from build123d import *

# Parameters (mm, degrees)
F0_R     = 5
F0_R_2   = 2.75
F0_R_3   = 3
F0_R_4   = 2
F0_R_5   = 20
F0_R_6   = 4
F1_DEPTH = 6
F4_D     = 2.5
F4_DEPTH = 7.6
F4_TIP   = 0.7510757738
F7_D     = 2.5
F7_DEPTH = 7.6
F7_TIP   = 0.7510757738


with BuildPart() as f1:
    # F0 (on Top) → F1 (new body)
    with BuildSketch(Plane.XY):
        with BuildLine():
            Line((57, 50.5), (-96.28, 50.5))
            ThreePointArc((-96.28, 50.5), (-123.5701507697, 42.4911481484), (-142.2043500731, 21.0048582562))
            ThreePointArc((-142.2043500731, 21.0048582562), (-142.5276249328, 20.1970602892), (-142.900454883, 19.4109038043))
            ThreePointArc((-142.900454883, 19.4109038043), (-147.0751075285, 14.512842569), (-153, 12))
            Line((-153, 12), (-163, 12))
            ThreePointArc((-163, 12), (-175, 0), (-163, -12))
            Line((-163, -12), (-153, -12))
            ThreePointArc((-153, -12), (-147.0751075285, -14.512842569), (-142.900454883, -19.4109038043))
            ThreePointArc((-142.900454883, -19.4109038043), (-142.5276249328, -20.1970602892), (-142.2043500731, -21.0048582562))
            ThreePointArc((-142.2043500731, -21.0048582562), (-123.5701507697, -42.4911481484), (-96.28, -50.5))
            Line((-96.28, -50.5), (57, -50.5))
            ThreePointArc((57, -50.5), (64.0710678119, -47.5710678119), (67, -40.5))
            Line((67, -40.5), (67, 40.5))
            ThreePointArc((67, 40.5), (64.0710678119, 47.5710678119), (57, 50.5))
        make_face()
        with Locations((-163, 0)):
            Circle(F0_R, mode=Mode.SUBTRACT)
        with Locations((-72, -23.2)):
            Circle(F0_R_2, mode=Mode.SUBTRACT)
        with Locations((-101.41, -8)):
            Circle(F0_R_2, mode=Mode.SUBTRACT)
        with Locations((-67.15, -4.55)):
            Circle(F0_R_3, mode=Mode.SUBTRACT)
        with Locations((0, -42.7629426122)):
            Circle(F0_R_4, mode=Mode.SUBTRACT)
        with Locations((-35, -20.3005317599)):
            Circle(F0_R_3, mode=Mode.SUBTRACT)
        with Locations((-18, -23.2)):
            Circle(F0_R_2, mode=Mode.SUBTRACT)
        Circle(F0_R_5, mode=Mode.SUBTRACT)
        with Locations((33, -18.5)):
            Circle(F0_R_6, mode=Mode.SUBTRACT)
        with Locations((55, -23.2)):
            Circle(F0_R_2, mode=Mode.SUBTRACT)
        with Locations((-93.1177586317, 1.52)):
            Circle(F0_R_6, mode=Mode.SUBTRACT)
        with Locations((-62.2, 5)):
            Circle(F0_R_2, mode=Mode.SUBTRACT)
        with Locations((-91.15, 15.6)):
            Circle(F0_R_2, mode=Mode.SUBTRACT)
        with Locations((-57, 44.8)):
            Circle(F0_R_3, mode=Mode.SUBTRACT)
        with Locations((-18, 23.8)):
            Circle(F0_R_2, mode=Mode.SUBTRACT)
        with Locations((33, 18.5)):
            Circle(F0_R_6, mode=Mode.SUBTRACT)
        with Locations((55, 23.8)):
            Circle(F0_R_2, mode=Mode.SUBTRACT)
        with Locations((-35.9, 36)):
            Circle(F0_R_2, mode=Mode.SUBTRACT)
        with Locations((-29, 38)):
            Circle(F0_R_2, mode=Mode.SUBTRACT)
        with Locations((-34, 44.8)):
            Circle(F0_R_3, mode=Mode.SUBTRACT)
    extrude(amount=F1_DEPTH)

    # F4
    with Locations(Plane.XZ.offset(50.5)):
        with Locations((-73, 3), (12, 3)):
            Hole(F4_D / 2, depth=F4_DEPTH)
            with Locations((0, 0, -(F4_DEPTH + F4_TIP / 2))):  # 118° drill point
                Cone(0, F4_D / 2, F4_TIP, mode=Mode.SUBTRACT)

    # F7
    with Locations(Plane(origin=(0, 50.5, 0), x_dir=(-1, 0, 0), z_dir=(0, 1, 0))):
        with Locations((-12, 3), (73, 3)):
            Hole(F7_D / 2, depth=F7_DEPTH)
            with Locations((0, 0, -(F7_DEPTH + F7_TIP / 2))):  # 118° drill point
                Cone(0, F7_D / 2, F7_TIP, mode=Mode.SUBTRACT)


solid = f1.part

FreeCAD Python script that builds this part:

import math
import FreeCAD as App
import Part
import Sketcher

V = App.Vector

doc = App.newDocument("Part")
params = doc.addObject("Spreadsheet::Sheet", "Params")
for row, (alias, value) in enumerate([
    ("sketch1_diameter", "10 mm"),
    ("sketch1_diameter2", "6 mm"),
    ("sketch1_diameter3", "4 mm"),
    ("sketch1_diameter4", "40 mm"),
    ("sketch1_diameter5", "8 mm"),
    ("pad1_length", "6 mm"),
    ("sketch2_diameter", "2.5 mm"),
    ("hole_diameter", "2.5 mm"),
    ("hole_depth", "7.6 mm"),
    ("sketch3_diameter", "2.5 mm"),
    ("hole2_diameter", "2.5 mm"),
    ("hole2_depth", "7.6 mm"),
], start=1):
    params.set(f"A{row}", alias)
    params.set(f"B{row}", "=" + value)
    params.setAlias(f"B{row}", alias)

body = doc.addObject("PartDesign::Body", "Body")

sketch1 = body.newObject("Sketcher::SketchObject", "Sketch")
sketch1.AttachmentSupport = (doc.getObject("XY_Plane"), [""])
sketch1.MapMode = "FlatFace"
sketch1.addGeometry(Part.LineSegment(V(57, 50.5, 0), V(-96.28, 50.5, 0)), False)
sketch1.addGeometry(Part.ArcOfCircle(Part.Circle(V(-96.28, 0, 0), V(0, 0, 1), 50.5), math.radians(90), math.radians(155.421613)), False)
sketch1.addGeometry(Part.ArcOfCircle(Part.Circle(V(-155.35752, 25.800076, 0), V(0, 0, 1), 14), math.radians(-27.153081), math.radians(-20.03021)), False)
sketch1.addGeometry(Part.ArcOfCircle(Part.Circle(V(-155.35752, 25.800076, 0), V(0, 0, 1), 14), math.radians(-80.305526), math.radians(-27.153081)), False)
sketch1.addGeometry(Part.LineSegment(V(-153, 12, 0), V(-163, 12, 0)), False)
sketch1.addGeometry(Part.ArcOfCircle(Part.Circle(V(-163, 0, 0), V(0, 0, 1), 12), math.radians(90), math.radians(270)), False)
sketch1.addGeometry(Part.LineSegment(V(-163, -12, 0), V(-153, -12, 0)), False)
sketch1.addGeometry(Part.ArcOfCircle(Part.Circle(V(-155.35752, -25.800076, 0), V(0, 0, 1), 14), math.radians(27.153081), math.radians(80.305526)), False)
sketch1.addGeometry(Part.ArcOfCircle(Part.Circle(V(-155.35752, -25.800076, 0), V(0, 0, 1), 14), math.radians(20.03021), math.radians(27.153081)), False)
sketch1.addGeometry(Part.ArcOfCircle(Part.Circle(V(-96.28, 0, 0), V(0, 0, 1), 50.5), math.radians(-155.421613), math.radians(-90)), False)
sketch1.addGeometry(Part.LineSegment(V(-96.28, -50.5, 0), V(57, -50.5, 0)), False)
sketch1.addGeometry(Part.ArcOfCircle(Part.Circle(V(57, -40.5, 0), V(0, 0, 1), 10), math.radians(-90), math.radians(0)), False)
sketch1.addGeometry(Part.LineSegment(V(67, -40.5, 0), V(67, 40.5, 0)), False)
sketch1.addGeometry(Part.ArcOfCircle(Part.Circle(V(57, 40.5, 0), V(0, 0, 1), 10), math.radians(0), math.radians(90)), False)
sketch1.addGeometry(Part.Circle(V(-72, -23.2, 0), V(0, 0, 1), 2.75), False)
sketch1.addGeometry(Part.Circle(V(-163, 0, 0), V(0, 0, 1), 5), False)
sketch1.addGeometry(Part.Circle(V(-101.41, -8, 0), V(0, 0, 1), 2.75), False)
sketch1.addGeometry(Part.Circle(V(-67.15, -4.55, 0), V(0, 0, 1), 3), False)
sketch1.addGeometry(Part.Circle(V(0, -42.762943, 0), V(0, 0, 1), 2), False)
sketch1.addGeometry(Part.Circle(V(-18, -23.2, 0), V(0, 0, 1), 2.75), False)
sketch1.addGeometry(Part.Circle(V(55, -23.2, 0), V(0, 0, 1), 2.75), False)
sketch1.addGeometry(Part.Circle(V(-35, -20.300532, 0), V(0, 0, 1), 3), False)
sketch1.addGeometry(Part.Circle(V(0, 0, 0), V(0, 0, 1), 20), False)
sketch1.addGeometry(Part.Circle(V(33, -18.5, 0), V(0, 0, 1), 4), False)
sketch1.addGeometry(Part.Circle(V(-93.117759, 1.52, 0), V(0, 0, 1), 4), False)
sketch1.addGeometry(Part.Circle(V(-62.2, 5, 0), V(0, 0, 1), 2.75), False)
sketch1.addGeometry(Part.Circle(V(-91.15, 15.6, 0), V(0, 0, 1), 2.75), False)
sketch1.addGeometry(Part.Circle(V(-57, 44.8, 0), V(0, 0, 1), 3), False)
sketch1.addGeometry(Part.Circle(V(-18, 23.8, 0), V(0, 0, 1), 2.75), False)
sketch1.addGeometry(Part.Circle(V(33, 18.5, 0), V(0, 0, 1), 4), False)
sketch1.addGeometry(Part.Circle(V(55, 23.8, 0), V(0, 0, 1), 2.75), False)
sketch1.addGeometry(Part.Circle(V(-35.9, 36, 0), V(0, 0, 1), 2.75), False)
sketch1.addGeometry(Part.Circle(V(-29, 38, 0), V(0, 0, 1), 2.75), False)
sketch1.addGeometry(Part.Circle(V(-34, 44.8, 0), V(0, 0, 1), 3), False)
sketch1.addConstraint(Sketcher.Constraint("Tangent", 0, 2, 1, 1))
sketch1.addConstraint(Sketcher.Constraint("Coincident", 1, 2, 2, 2))
sketch1.addConstraint(Sketcher.Constraint("Tangent", 2, 1, 3, 2))
sketch1.addConstraint(Sketcher.Constraint("Coincident", 3, 1, 4, 1))
sketch1.addConstraint(Sketcher.Constraint("Tangent", 4, 2, 5, 1))
sketch1.addConstraint(Sketcher.Constraint("Tangent", 5, 2, 6, 1))
sketch1.addConstraint(Sketcher.Constraint("Coincident", 6, 2, 7, 2))
sketch1.addConstraint(Sketcher.Constraint("Tangent", 7, 1, 8, 2))
sketch1.addConstraint(Sketcher.Constraint("Coincident", 8, 1, 9, 1))
sketch1.addConstraint(Sketcher.Constraint("Tangent", 9, 2, 10, 1))
sketch1.addConstraint(Sketcher.Constraint("Tangent", 10, 2, 11, 1))
sketch1.addConstraint(Sketcher.Constraint("Tangent", 11, 2, 12, 1))
sketch1.addConstraint(Sketcher.Constraint("Tangent", 12, 2, 13, 1))
sketch1.addConstraint(Sketcher.Constraint("Tangent", 13, 2, 0, 1))
sketch1.addConstraint(Sketcher.Constraint("Horizontal", 0))
sketch1.addConstraint(Sketcher.Constraint("Horizontal", 4))
sketch1.addConstraint(Sketcher.Constraint("Horizontal", 6))
sketch1.addConstraint(Sketcher.Constraint("Horizontal", 10))
sketch1.addConstraint(Sketcher.Constraint("Vertical", 12))
sketch1.addConstraint(Sketcher.Constraint("Coincident", 22, 3, -1, 1))
sketch1.addConstraint(Sketcher.Constraint("Coincident", 9, 3, 1, 3))
sketch1.addConstraint(Sketcher.Constraint("Coincident", 15, 3, 5, 3))
sketch1.addConstraint(Sketcher.Constraint("Equal", 2, 3))
sketch1.addConstraint(Sketcher.Constraint("Equal", 3, 7))
sketch1.addConstraint(Sketcher.Constraint("Equal", 7, 8))
sketch1.addConstraint(Sketcher.Constraint("Equal", 1, 9))
sketch1.addConstraint(Sketcher.Constraint("Equal", 11, 13))
sketch1.addConstraint(Sketcher.Constraint("Equal", 14, 16))
sketch1.addConstraint(Sketcher.Constraint("Equal", 16, 19))
sketch1.addConstraint(Sketcher.Constraint("Equal", 19, 20))
sketch1.addConstraint(Sketcher.Constraint("Equal", 17, 21))
sketch1.addConstraint(Sketcher.Constraint("Equal", 23, 24))
sketch1.addConstraint(Sketcher.Constraint("Equal", 20, 25))
sketch1.addConstraint(Sketcher.Constraint("Equal", 25, 26))
sketch1.addConstraint(Sketcher.Constraint("Equal", 21, 27))
sketch1.addConstraint(Sketcher.Constraint("Equal", 26, 28))
sketch1.addConstraint(Sketcher.Constraint("Equal", 24, 29))
sketch1.addConstraint(Sketcher.Constraint("Equal", 28, 30))
sketch1.addConstraint(Sketcher.Constraint("Equal", 30, 31))
sketch1.addConstraint(Sketcher.Constraint("Equal", 31, 32))
sketch1.addConstraint(Sketcher.Constraint("Equal", 27, 33))
sketch1.addConstraint(Sketcher.Constraint("Symmetric", 2, 3, 7, 3, -1))
sketch1.addConstraint(Sketcher.Constraint("Symmetric", 23, 3, 29, 3, -1))
sketch1.addConstraint(Sketcher.Constraint("PointOnObject", 1, 3, -1))
sketch1.addConstraint(Sketcher.Constraint("PointOnObject", 5, 3, -1))
sketch1.addConstraint(Sketcher.Constraint("PointOnObject", 18, 3, -2))
sketch1.addConstraint(Sketcher.Constraint("Horizontal", 14, 3, 19, 3))
sketch1.addConstraint(Sketcher.Constraint("Horizontal", 19, 3, 20, 3))
sketch1.addConstraint(Sketcher.Constraint("Horizontal", 28, 3, 30, 3))
sketch1.addConstraint(Sketcher.Constraint("Horizontal", 27, 3, 33, 3))
sketch1.addConstraint(Sketcher.Constraint("Vertical", 19, 3, 28, 3))
sketch1.addConstraint(Sketcher.Constraint("Vertical", 20, 3, 30, 3))
sketch1.addConstraint(Sketcher.Constraint("Vertical", 2, 1, 7, 1))
sketch1.addConstraint(Sketcher.Constraint("Diameter", 15, 10.0))
sketch1.addConstraint(Sketcher.Constraint("Diameter", 17, 6.0))
sketch1.addConstraint(Sketcher.Constraint("Diameter", 18, 4.0))
sketch1.addConstraint(Sketcher.Constraint("Diameter", 22, 40.0))
sketch1.addConstraint(Sketcher.Constraint("Diameter", 23, 8.0))
sketch1.addConstraint(Sketcher.Constraint("Radius", 2, 14.0))
sketch1.addConstraint(Sketcher.Constraint("Radius", 5, 12.0))
sketch1.addConstraint(Sketcher.Constraint("Radius", 11, 10.0))
sketch1.addConstraint(Sketcher.Constraint("Diameter", 14, 5.5))
sketch1.addConstraint(Sketcher.Constraint("Radius", 1, 50.5))
sketch1.addConstraint(Sketcher.Constraint("DistanceX", 4, 2, 4, 1, 10.0))
sketch1.addConstraint(Sketcher.Constraint("DistanceX", 5, 3, -1, 1, 163.0))
sketch1.addConstraint(Sketcher.Constraint("DistanceX", -1, 1, 11, 3, 57.0))
sketch1.addConstraint(Sketcher.Constraint("DistanceX", 14, 3, -1, 1, 72.0))
sketch1.addConstraint(Sketcher.Constraint("DistanceY", 16, 3, -1, 1, 8.0))
sketch1.addConstraint(Sketcher.Constraint("DistanceX", 19, 3, -1, 1, 18.0))
sketch1.addConstraint(Sketcher.Constraint("DistanceX", -1, 1, 20, 3, 55.0))
sketch1.addConstraint(Sketcher.Constraint("DistanceX", 21, 3, -1, 1, 35.0))
sketch1.addConstraint(Sketcher.Constraint("DistanceX", -1, 1, 23, 3, 33.0))
sketch1.addConstraint(Sketcher.Constraint("DistanceY", -1, 1, 25, 3, 5.0))
sketch1.addConstraint(Sketcher.Constraint("DistanceX", 27, 3, -1, 1, 57.0))
sketch1.addConstraint(Sketcher.Constraint("DistanceY", -1, 1, 31, 3, 36.0))
sketch1.addConstraint(Sketcher.Constraint("DistanceX", 32, 3, -1, 1, 29.0))
sketch1.addConstraint(Sketcher.Constraint("DistanceY", -1, 1, 32, 3, 38.0))
sketch1.addConstraint(Sketcher.Constraint("DistanceX", 33, 3, -1, 1, 34.0))
sketch1.addConstraint(Sketcher.Constraint("DistanceY", 11, 3, 23, 3, 22.0))
sketch1.addConstraint(Sketcher.Constraint("DistanceY", 28, 3, 27, 3, 21.0))
sketch1.addConstraint(Sketcher.Constraint("DistanceY", 19, 3, 28, 3, 47.0))
sketch1.addConstraint(Sketcher.Constraint("DistanceX", 0, 2, 0, 1, 153.28))
sketch1.addConstraint(Sketcher.Constraint("DistanceY", 14, 3, -1, 1, 23.2))
sketch1.addConstraint(Sketcher.Constraint("DistanceX", 25, 3, -1, 1, 62.2))
sketch1.addConstraint(Sketcher.Constraint("DistanceY", -1, 1, 26, 3, 15.6))
sketch1.addConstraint(Sketcher.Constraint("DistanceX", 31, 3, -1, 1, 35.9))
sketch1.addConstraint(Sketcher.Constraint("DistanceX", 16, 3, -1, 1, 101.41))
sketch1.addConstraint(Sketcher.Constraint("DistanceX", 17, 3, -1, 1, 67.15))
sketch1.addConstraint(Sketcher.Constraint("DistanceY", 17, 3, -1, 1, 4.55))
sketch1.addConstraint(Sketcher.Constraint("DistanceY", -1, 1, 24, 3, 1.52))
sketch1.addConstraint(Sketcher.Constraint("DistanceX", 26, 3, -1, 1, 91.15))
sketch1.addConstraint(Sketcher.Constraint("DistanceX", 2, 3, -1, 1, 155.35752))
sketch1.addConstraint(Sketcher.Constraint("DistanceY", 21, 3, -1, 1, 20.300532))
sketch1.addConstraint(Sketcher.Constraint("DistanceX", 24, 3, -1, 1, 93.117759))
sketch1.addConstraint(Sketcher.Constraint("DistanceY", 18, 3, 21, 3, 22.462411))
sketch1.addConstraint(Sketcher.Constraint("DistanceX", 2, 1, -1, 1, 142.900455))
sketch1.setExpression("Constraints[53]", "Params.sketch1_diameter")
sketch1.setExpression("Constraints[54]", "Params.sketch1_diameter2")
sketch1.setExpression("Constraints[55]", "Params.sketch1_diameter3")
sketch1.setExpression("Constraints[56]", "Params.sketch1_diameter4")
sketch1.setExpression("Constraints[57]", "Params.sketch1_diameter5")
pad1 = body.newObject("PartDesign::Pad", "Pad")
pad1.Profile = sketch1
pad1.setExpression("Length", "Params.pad1_length")

sketch2 = body.newObject("Sketcher::SketchObject", "Sketch001")
sketch2.AttachmentSupport = (doc.getObject("XZ_Plane"), [""])
sketch2.MapMode = "FlatFace"
sketch2.AttachmentOffset = App.Placement(V(0, 0, 50.5), App.Rotation())
sketch2.addGeometry(Part.Circle(V(-73, 3, 0), V(0, 0, 1), 1.25), False)
sketch2.addGeometry(Part.Circle(V(12, 3, 0), V(0, 0, 1), 1.25), False)
sketch2.addConstraint(Sketcher.Constraint("Equal", 0, 1))
sketch2.addConstraint(Sketcher.Constraint("Horizontal", 0, 3, 1, 3))
sketch2.addConstraint(Sketcher.Constraint("Diameter", 0, 2.5))
sketch2.addConstraint(Sketcher.Constraint("DistanceX", 0, 3, -1, 1, 73.0))
sketch2.addConstraint(Sketcher.Constraint("DistanceY", -1, 1, 0, 3, 3.0))
sketch2.addConstraint(Sketcher.Constraint("DistanceX", -1, 1, 1, 3, 12.0))
sketch2.setExpression("Constraints[2]", "Params.sketch2_diameter")
doc.recompute()
hole = body.newObject("PartDesign::Hole", "Hole")
hole.Profile = sketch2
hole.ThreadType = "None"
hole.setExpression("Diameter", "Params.hole_diameter")
hole.DepthType = "Dimension"
hole.setExpression("Depth", "Params.hole_depth")
hole.DrillPoint = "Angled"
hole.DrillPointAngle = 118

sketch3 = body.newObject("Sketcher::SketchObject", "Sketch002")
sketch3.AttachmentSupport = (doc.getObject("XZ_Plane"), [""])
sketch3.MapMode = "FlatFace"
sketch3.AttachmentOffset = App.Placement(V(0, 0, -50.5), App.Rotation())
sketch3.addGeometry(Part.Circle(V(12, 3, 0), V(0, 0, 1), 1.25), False)
sketch3.addGeometry(Part.Circle(V(-73, 3, 0), V(0, 0, 1), 1.25), False)
sketch3.addConstraint(Sketcher.Constraint("Equal", 0, 1))
sketch3.addConstraint(Sketcher.Constraint("Horizontal", 0, 3, 1, 3))
sketch3.addConstraint(Sketcher.Constraint("Diameter", 0, 2.5))
sketch3.addConstraint(Sketcher.Constraint("DistanceX", -1, 1, 0, 3, 12.0))
sketch3.addConstraint(Sketcher.Constraint("DistanceY", -1, 1, 0, 3, 3.0))
sketch3.addConstraint(Sketcher.Constraint("DistanceX", 1, 3, -1, 1, 73.0))
sketch3.setExpression("Constraints[2]", "Params.sketch3_diameter")
doc.recompute()
hole2 = body.newObject("PartDesign::Hole", "Hole001")
hole2.Profile = sketch3
hole2.ThreadType = "None"
hole2.setExpression("Diameter", "Params.hole2_diameter")
hole2.DepthType = "Dimension"
hole2.setExpression("Depth", "Params.hole2_depth")
hole2.DrillPoint = "Angled"
hole2.DrillPointAngle = 118
hole2.Reversed = True

doc.recompute()
